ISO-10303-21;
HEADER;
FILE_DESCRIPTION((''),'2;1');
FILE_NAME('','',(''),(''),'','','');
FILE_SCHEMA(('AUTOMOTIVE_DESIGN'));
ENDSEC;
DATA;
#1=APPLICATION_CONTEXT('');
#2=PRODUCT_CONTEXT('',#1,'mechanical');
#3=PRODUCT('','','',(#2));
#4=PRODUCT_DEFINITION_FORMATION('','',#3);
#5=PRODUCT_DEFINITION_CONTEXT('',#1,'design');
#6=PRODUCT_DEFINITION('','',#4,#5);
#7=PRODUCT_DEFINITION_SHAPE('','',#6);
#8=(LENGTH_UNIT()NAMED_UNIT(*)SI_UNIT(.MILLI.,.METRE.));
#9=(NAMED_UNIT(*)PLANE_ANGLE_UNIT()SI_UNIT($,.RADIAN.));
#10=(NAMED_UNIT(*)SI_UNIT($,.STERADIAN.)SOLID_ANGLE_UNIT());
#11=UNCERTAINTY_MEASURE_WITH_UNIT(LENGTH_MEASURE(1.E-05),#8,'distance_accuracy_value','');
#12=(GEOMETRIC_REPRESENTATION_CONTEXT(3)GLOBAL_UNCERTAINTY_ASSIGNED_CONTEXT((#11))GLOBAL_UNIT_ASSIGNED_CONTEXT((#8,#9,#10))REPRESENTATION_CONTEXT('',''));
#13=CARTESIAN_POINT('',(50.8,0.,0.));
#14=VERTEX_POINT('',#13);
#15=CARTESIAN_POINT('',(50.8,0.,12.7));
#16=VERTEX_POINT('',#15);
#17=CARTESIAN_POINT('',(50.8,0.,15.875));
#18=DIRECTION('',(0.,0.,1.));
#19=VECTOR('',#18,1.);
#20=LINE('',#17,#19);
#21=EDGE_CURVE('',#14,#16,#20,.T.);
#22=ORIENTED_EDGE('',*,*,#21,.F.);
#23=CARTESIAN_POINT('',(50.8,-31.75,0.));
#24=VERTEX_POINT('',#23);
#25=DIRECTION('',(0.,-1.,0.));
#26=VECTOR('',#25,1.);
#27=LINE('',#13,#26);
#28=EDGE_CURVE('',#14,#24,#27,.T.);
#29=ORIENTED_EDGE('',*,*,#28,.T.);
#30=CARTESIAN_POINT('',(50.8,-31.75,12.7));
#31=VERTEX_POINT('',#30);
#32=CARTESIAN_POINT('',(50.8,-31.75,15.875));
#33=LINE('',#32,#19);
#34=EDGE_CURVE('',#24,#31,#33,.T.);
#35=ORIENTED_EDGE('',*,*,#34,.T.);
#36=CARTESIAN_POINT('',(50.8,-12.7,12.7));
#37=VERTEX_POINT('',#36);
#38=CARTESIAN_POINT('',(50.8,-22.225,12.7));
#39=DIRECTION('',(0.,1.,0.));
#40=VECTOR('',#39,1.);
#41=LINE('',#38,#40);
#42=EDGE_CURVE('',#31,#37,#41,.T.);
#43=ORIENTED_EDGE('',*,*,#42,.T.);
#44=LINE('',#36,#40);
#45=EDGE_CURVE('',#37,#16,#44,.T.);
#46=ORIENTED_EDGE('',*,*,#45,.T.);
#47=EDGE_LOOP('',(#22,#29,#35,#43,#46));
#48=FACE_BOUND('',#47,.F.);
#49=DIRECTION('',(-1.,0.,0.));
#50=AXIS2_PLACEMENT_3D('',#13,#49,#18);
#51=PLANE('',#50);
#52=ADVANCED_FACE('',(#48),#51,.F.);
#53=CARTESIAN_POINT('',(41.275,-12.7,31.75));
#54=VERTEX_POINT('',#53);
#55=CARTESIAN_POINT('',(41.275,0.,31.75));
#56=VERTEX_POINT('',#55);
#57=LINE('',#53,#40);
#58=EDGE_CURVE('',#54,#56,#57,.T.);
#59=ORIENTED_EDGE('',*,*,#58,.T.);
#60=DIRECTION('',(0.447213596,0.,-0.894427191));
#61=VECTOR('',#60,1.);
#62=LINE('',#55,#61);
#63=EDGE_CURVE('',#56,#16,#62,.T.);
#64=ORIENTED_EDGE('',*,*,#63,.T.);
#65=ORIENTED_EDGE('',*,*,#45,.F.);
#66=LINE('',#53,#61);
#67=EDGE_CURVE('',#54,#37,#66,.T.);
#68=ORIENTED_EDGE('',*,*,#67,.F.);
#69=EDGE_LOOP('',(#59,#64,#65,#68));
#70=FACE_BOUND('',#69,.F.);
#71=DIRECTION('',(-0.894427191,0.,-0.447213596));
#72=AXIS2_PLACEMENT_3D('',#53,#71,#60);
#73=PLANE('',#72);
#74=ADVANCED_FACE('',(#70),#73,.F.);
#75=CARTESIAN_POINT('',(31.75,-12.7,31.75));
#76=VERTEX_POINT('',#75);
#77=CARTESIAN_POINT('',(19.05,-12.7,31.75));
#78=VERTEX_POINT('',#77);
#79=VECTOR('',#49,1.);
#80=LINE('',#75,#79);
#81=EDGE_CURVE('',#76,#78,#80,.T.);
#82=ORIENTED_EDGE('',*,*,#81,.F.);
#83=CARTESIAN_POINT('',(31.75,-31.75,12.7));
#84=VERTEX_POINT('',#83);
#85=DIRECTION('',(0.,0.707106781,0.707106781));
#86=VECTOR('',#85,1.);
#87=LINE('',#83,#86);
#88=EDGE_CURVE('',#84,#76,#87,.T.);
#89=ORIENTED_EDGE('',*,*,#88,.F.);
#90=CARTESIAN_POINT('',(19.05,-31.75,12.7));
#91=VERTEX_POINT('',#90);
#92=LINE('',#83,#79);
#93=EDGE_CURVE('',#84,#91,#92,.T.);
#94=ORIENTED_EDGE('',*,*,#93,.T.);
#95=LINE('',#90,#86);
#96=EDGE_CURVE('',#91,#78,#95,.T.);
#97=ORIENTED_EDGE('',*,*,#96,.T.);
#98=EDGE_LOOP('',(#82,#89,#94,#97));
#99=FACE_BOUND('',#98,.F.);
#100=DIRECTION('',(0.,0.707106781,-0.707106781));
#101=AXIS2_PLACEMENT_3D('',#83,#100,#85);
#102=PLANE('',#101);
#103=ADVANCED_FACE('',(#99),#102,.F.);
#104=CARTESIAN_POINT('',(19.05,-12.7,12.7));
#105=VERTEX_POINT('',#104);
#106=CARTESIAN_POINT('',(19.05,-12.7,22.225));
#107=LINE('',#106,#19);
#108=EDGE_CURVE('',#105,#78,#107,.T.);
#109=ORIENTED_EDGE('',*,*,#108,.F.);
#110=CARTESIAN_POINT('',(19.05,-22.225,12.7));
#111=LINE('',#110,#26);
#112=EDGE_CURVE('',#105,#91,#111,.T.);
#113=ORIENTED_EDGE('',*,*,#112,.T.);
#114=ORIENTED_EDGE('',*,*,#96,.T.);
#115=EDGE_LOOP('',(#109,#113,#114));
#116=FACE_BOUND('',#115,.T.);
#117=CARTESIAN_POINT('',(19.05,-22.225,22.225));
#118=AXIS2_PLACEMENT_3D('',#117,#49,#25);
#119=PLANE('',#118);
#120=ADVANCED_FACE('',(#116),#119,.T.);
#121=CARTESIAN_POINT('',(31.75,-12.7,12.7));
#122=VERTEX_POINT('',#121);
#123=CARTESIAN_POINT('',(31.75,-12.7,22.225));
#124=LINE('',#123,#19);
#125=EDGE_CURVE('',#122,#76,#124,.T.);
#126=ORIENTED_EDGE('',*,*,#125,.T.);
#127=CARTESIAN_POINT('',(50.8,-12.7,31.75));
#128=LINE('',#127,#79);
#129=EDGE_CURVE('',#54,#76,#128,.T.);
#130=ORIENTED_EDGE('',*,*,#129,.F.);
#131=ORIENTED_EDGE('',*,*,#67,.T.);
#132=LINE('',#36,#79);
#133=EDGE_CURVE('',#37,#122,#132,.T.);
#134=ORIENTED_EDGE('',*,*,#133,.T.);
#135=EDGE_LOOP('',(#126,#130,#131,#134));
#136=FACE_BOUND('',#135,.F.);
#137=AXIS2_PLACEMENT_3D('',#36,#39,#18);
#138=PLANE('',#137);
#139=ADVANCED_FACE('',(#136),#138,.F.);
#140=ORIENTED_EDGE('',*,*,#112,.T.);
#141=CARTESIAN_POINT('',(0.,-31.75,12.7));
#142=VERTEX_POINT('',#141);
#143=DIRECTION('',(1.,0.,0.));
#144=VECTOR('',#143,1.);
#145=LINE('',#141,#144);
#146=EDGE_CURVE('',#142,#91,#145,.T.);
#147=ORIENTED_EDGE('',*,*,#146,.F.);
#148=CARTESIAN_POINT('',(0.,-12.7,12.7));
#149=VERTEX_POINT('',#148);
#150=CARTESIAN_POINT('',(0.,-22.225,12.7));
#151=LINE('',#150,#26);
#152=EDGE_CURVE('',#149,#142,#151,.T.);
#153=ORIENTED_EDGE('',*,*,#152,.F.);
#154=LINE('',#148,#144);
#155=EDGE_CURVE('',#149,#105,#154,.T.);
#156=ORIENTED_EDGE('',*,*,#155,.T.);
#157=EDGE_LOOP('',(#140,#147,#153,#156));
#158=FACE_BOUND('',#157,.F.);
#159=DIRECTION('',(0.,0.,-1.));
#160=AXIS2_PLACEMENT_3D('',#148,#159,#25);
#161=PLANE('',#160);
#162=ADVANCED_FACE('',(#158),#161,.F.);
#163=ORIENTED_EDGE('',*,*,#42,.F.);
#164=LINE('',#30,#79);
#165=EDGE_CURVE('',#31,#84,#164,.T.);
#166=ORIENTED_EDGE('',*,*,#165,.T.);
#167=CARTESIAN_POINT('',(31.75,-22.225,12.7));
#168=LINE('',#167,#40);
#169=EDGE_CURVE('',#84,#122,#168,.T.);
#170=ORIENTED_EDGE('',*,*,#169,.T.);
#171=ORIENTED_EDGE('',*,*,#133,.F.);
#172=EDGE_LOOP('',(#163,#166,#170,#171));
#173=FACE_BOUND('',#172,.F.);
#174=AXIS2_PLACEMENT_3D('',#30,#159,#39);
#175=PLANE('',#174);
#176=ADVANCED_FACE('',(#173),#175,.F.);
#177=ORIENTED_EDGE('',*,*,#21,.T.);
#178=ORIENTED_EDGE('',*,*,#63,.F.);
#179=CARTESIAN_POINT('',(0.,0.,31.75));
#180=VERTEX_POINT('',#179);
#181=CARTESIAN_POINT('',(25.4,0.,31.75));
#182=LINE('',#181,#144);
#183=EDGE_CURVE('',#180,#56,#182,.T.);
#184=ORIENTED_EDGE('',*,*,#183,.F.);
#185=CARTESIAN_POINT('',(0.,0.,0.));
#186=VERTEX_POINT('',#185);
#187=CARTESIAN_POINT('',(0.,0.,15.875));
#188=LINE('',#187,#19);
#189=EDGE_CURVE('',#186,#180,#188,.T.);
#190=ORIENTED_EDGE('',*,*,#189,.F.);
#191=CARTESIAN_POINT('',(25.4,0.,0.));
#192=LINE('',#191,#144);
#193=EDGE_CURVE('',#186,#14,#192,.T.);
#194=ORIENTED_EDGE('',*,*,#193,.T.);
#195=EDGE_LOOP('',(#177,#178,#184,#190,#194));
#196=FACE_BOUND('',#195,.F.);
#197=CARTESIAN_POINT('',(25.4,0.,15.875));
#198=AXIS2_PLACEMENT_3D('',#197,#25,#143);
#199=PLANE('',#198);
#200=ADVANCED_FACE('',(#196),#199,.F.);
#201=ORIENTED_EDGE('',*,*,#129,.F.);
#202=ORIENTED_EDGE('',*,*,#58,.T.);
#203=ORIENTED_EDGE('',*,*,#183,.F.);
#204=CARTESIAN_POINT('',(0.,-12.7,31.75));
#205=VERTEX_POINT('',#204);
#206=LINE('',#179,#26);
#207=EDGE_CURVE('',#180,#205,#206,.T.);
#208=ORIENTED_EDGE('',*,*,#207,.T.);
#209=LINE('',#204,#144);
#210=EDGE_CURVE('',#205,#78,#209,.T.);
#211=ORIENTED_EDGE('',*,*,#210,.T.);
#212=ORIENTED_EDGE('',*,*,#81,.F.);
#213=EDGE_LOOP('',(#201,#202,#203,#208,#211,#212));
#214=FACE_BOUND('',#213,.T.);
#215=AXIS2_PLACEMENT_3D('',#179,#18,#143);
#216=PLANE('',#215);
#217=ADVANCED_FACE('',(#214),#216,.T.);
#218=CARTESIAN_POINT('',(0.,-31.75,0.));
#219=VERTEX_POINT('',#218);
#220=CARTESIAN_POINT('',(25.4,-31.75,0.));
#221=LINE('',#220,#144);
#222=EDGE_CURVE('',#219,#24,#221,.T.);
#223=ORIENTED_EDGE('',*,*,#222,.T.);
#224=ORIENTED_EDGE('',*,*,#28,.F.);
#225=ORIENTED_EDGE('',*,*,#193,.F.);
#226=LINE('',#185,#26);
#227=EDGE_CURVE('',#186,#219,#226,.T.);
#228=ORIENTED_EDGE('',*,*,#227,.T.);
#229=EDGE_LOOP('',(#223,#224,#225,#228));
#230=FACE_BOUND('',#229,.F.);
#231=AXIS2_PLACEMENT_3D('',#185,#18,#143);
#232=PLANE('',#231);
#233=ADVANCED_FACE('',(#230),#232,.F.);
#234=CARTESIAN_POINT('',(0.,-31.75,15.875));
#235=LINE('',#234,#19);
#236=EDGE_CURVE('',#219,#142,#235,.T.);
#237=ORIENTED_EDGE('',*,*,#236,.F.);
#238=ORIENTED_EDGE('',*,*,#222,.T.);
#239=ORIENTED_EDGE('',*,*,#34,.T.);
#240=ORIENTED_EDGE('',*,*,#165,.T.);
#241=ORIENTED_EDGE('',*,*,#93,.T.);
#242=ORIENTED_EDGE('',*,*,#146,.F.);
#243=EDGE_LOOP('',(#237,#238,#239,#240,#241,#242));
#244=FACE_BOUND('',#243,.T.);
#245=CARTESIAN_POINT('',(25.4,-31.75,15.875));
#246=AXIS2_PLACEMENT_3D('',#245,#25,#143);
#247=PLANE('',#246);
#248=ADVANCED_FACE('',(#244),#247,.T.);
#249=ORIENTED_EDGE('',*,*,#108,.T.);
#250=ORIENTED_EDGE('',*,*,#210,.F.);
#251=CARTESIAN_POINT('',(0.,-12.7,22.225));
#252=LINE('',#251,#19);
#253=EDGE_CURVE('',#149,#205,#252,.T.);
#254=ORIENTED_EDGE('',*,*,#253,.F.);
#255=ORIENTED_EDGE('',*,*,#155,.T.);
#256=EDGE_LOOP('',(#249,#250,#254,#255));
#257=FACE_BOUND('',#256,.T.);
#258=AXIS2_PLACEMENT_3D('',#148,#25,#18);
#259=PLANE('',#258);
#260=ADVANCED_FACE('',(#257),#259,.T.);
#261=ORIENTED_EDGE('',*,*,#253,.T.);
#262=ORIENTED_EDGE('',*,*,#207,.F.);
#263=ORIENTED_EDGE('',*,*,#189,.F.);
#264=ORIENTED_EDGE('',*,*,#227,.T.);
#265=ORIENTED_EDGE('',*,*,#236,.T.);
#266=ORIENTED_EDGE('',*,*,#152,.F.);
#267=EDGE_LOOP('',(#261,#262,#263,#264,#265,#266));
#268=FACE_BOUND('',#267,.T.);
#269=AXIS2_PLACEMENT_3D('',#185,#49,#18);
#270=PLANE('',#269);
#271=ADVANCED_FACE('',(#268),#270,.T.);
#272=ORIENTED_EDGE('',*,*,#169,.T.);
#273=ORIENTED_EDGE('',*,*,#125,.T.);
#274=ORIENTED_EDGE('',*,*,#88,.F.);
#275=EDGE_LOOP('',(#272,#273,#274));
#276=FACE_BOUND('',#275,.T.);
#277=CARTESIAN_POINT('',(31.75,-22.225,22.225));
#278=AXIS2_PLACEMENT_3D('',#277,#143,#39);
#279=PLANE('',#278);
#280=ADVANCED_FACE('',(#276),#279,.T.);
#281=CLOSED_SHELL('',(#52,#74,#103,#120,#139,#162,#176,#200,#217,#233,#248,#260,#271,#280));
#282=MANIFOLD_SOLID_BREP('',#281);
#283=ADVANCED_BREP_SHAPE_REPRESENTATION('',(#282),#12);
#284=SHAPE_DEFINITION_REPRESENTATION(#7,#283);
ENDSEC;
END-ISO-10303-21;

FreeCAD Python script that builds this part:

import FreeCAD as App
import Part
import Sketcher
from FreeCAD import Vector
Q = App.Units.Quantity

doc = App.newDocument("Part")
body = doc.addObject("PartDesign::Body", "Body")

# Sketch on XZ plane
sketch1 = body.newObject("Sketcher::SketchObject", "Sketch")
sketch1.AttachmentSupport = (doc.getObject("XZ_Plane"), [""])
sketch1.MapMode = "FlatFace"
sketch1.addGeometry([
    Part.LineSegment(Vector(0, 32, 0), Vector(0, 0, 0)),
    Part.LineSegment(Vector(0, 0, 0), Vector(51, 0, 0)),
    Part.LineSegment(Vector(51, 0, 0), Vector(51, 32, 0)),
    Part.LineSegment(Vector(51, 32, 0), Vector(0, 32, 0)),
], False)
sketch1.addConstraint([
    Sketcher.Constraint("Coincident", 0, 2, 1, 1),
    Sketcher.Constraint("Coincident", 1, 2, 2, 1),
    Sketcher.Constraint("Coincident", 2, 2, 3, 1),
    Sketcher.Constraint("Coincident", 3, 2, 0, 1),
    Sketcher.Constraint("Vertical", 0),
    Sketcher.Constraint("Horizontal", 1),
    Sketcher.Constraint("Vertical", 2),
    Sketcher.Constraint("Horizontal", 3),
    Sketcher.Constraint("Coincident", 0, 2, -1, 1),
    Sketcher.Constraint("DistanceX", 1, 1, 1, 2, Q("2 in")),
    Sketcher.Constraint("DistanceY", 0, 2, 0, 1, Q("1.25 in")),
])
pad1 = body.newObject("PartDesign::Pad", "Pad")
pad1.Profile = sketch1
pad1.Length = Q("1.25 in")

# Sketch on YZ plane
sketch2 = body.newObject("Sketcher::SketchObject", "Sketch001")
sketch2.AttachmentSupport = (doc.getObject("YZ_Plane"), [""])
sketch2.MapMode = "FlatFace"
sketch2.AttachmentOffset = App.Placement(Vector(0, 0, 2 * 25.4), App.Rotation())
sketch2.addGeometry([
    Part.LineSegment(Vector(-32, 32, 0), Vector(-32, 13, 0)),
    Part.LineSegment(Vector(-32, 13, 0), Vector(-13, 13, 0)),
    Part.LineSegment(Vector(-13, 13, 0), Vector(-13, 32, 0)),
    Part.LineSegment(Vector(-13, 32, 0), Vector(-32, 32, 0)),
], False)
sketch2.addConstraint([
    Sketcher.Constraint("Coincident", 0, 2, 1, 1),
    Sketcher.Constraint("Coincident", 1, 2, 2, 1),
    Sketcher.Constraint("Coincident", 2, 2, 3, 1),
    Sketcher.Constraint("Coincident", 3, 2, 0, 1),
    Sketcher.Constraint("Vertical", 0),
    Sketcher.Constraint("Horizontal", 1),
    Sketcher.Constraint("Vertical", 2),
    Sketcher.Constraint("Horizontal", 3),
    Sketcher.Constraint("Equal", 3, 0),
    Sketcher.Constraint("DistanceX", 1, 1, 1, 2, Q("0.75 in")),
    Sketcher.Constraint("DistanceY", -1, 1, 0, 2, Q("0.5 in")),
    Sketcher.Constraint("DistanceX", 1, 2, -1, 1, Q("0.5 in")),
])
pocket1 = body.newObject("PartDesign::Pocket", "Pocket")
pocket1.Profile = sketch2
pocket1.Length = Q("0.75 in")

# Sketch on YZ plane
sketch3 = body.newObject("Sketcher::SketchObject", "Sketch002")
sketch3.AttachmentSupport = (doc.getObject("YZ_Plane"), [""])
sketch3.MapMode = "FlatFace"
sketch3.addGeometry([
    Part.LineSegment(Vector(-13, 32, 0), Vector(-13, 13, 0)),
    Part.LineSegment(Vector(-13, 13, 0), Vector(-32, 13, 0)),
    Part.LineSegment(Vector(-32, 13, 0), Vector(-32, 32, 0)),
    Part.LineSegment(Vector(-32, 32, 0), Vector(-13, 32, 0)),
], False)
sketch3.addConstraint([
    Sketcher.Constraint("Coincident", 0, 2, 1, 1),
    Sketcher.Constraint("Coincident", 1, 2, 2, 1),
    Sketcher.Constraint("Coincident", 2, 2, 3, 1),
    Sketcher.Constraint("Coincident", 3, 2, 0, 1),
    Sketcher.Constraint("Vertical", 0),
    Sketcher.Constraint("Horizontal", 1),
    Sketcher.Constraint("Vertical", 2),
    Sketcher.Constraint("Horizontal", 3),
    Sketcher.Constraint("Equal", 3, 0),
    Sketcher.Constraint("DistanceX", 1, 2, 1, 1, Q("0.75 in")),
    Sketcher.Constraint("DistanceX", 0, 2, -1, 1, Q("0.5 in")),
    Sketcher.Constraint("DistanceY", -1, 1, 0, 2, Q("0.5 in")),
])
pocket2 = body.newObject("PartDesign::Pocket", "Pocket001")
pocket2.Profile = sketch3
pocket2.Length = Q("0.75 in")
pocket2.Reversed = True

# Sketch on XZ plane
sketch4 = body.newObject("Sketcher::SketchObject", "Sketch003")
sketch4.AttachmentSupport = (doc.getObject("XZ_Plane"), [""])
sketch4.MapMode = "FlatFace"
sketch4.AttachmentOffset = App.Placement(Vector(0, 0, 0.5 * 25.4), App.Rotation())
sketch4.addGeometry([
    Part.LineSegment(Vector(51, 32, 0), Vector(41, 32, 0)),
    Part.LineSegment(Vector(41, 32, 0), Vector(51, 13, 0)),
    Part.LineSegment(Vector(51, 13, 0), Vector(51, 32, 0)),
], False)
sketch4.addConstraint([
    Sketcher.Constraint("Coincident", 0, 2, 1, 1),
    Sketcher.Constraint("Coincident", 1, 2, 2, 1),
    Sketcher.Constraint("Coincident", 2, 2, 0, 1),
    Sketcher.Constraint("Horizontal", 0),
    Sketcher.Constraint("Vertical", 2),
    Sketcher.Constraint("DistanceX", -1, 1, 1, 2, Q("2 in")),
    Sketcher.Constraint("DistanceY", 2, 1, 2, 2, Q("0.75 in")),
    Sketcher.Constraint("DistanceY", -1, 1, 1, 2, Q("0.5 in")),
    Sketcher.Constraint("DistanceX", 0, 2, 0, 1, Q("0.375 in")),
])
pocket3 = body.newObject("PartDesign::Pocket", "Pocket002")
pocket3.Profile = sketch4
pocket3.Length = Q("0.5 in")

# Sketch on YZ plane
sketch5 = body.newObject("Sketcher::SketchObject", "Sketch004")
sketch5.AttachmentSupport = (doc.getObject("YZ_Plane"), [""])
sketch5.MapMode = "FlatFace"
sketch5.AttachmentOffset = App.Placement(Vector(0, 0, 1.25 * 25.4), App.Rotation())
sketch5.addGeometry([
    Part.LineSegment(Vector(-32, 13, 0), Vector(-13, 32, 0)),
    Part.LineSegment(Vector(-13, 32, 0), Vector(-32, 32, 0)),
    Part.LineSegment(Vector(-32, 32, 0), Vector(-32, 13, 0)),
], False)
sketch5.addConstraint([
    Sketcher.Constraint("Coincident", 0, 2, 1, 1),
    Sketcher.Constraint("Coincident", 1, 2, 2, 1),
    Sketcher.Constraint("Coincident", 2, 2, 0, 1),
    Sketcher.Constraint("Horizontal", 1),
    Sketcher.Constraint("Vertical", 2),
    Sketcher.Constraint("Equal", 1, 2),
    Sketcher.Constraint("DistanceX", 1, 2, 1, 1, Q("0.75 in")),
    Sketcher.Constraint("DistanceX", 0, 2, -1, 1, Q("0.5 in")),
    Sketcher.Constraint("DistanceY", -1, 1, 2, 2, Q("0.5 in")),
])
pocket4 = body.newObject("PartDesign::Pocket", "Pocket003")
pocket4.Profile = sketch5
pocket4.Length = Q("0.5 in")

doc.recompute()
